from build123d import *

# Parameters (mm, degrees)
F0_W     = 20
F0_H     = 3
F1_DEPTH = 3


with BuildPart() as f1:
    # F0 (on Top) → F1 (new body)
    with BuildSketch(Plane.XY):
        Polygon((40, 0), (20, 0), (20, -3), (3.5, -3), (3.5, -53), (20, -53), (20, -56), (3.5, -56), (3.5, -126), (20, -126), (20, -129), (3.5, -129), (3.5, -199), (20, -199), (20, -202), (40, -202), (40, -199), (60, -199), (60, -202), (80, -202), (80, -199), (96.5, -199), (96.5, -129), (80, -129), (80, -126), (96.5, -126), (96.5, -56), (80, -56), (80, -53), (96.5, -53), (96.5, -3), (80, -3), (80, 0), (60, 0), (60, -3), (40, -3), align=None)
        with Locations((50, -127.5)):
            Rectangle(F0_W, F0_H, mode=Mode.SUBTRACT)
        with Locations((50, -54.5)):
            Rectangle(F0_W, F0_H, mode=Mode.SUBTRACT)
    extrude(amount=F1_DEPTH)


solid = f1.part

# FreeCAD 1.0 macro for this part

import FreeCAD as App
import Part
import Sketcher
from FreeCAD import Vector


def add_polygon(sketch, points):
    """Adds a closed chain of lines whose ends are joined by coincident constraints."""
    first, n = sketch.GeometryCount, len(points)
    for a, b in zip(points, points[1:] + points[:1]):
        sketch.addGeometry(Part.LineSegment(App.Vector(*a, 0), App.Vector(*b, 0)), False)
    for i in range(n):
        sketch.addConstraint(Sketcher.Constraint("Coincident", first + i, 2, first + (i + 1) % n, 1))

doc = App.newDocument("Part")
params = doc.addObject("Spreadsheet::Sheet", "Params")
for row, (alias, value) in enumerate([
    ("sketch1_width", "20 mm"),
    ("sketch1_height", "3 mm"),
    ("sketch1_height2", "50 mm"),
    ("sketch1_height3", "70 mm"),
    ("sketch1_width2", "16.5 mm"),
    ("pad1_length", "3 mm"),
], start=1):
    params.set(f"A{row}", alias)
    params.set(f"B{row}", "=" + value)
    params.setAlias(f"B{row}", alias)

body = doc.addObject("PartDesign::Body", "Body")

# Sketch on XY plane
sketch1 = body.newObject("Sketcher::SketchObject", "Sketch")
sketch1.AttachmentSupport = (doc.getObject("XY_Plane"), [""])
sketch1.MapMode = "FlatFace"
add_polygon(sketch1, [(40, 0), (20, 0), (20, -3), (3.5, -3), (3.5, -53), (20, -53), (20, -56), (3.5, -56), (3.5, -126), (20, -126), (20, -129), (3.5, -129), (3.5, -199), (20, -199), (20, -202), (40, -202), (40, -199), (60, -199), (60, -202), (80, -202), (80, -199), (96.5, -199), (96.5, -129), (80, -129), (80, -126), (96.5, -126), (96.5, -56), (80, -56), (80, -53), (96.5, -53), (96.5, -3), (80, -3), (80, 0), (60, 0), (60, -3), (40, -3)])  # lines 0-35
add_polygon(sketch1, [(60, -129), (40, -129), (40, -126), (60, -126)])  # lines 36-39
add_polygon(sketch1, [(60, -56), (40, -56), (40, -53), (60, -53)])  # lines 40-43
sketch1.addConstraint([
    Sketcher.Constraint("Horizontal", 0),
    Sketcher.Constraint("Vertical", 1),
    Sketcher.Constraint("Horizontal", 2),
    Sketcher.Constraint("Vertical", 3),
    Sketcher.Constraint("Horizontal", 4),
    Sketcher.Constraint("Vertical", 5),
    Sketcher.Constraint("Horizontal", 6),
    Sketcher.Constraint("Vertical", 7),
    Sketcher.Constraint("Horizontal", 8),
    Sketcher.Constraint("Vertical", 9),
    Sketcher.Constraint("Horizontal", 10),
    Sketcher.Constraint("Vertical", 11),
    Sketcher.Constraint("Horizontal", 12),
    Sketcher.Constraint("Vertical", 13),
    Sketcher.Constraint("Horizontal", 14),
    Sketcher.Constraint("Vertical", 15),
    Sketcher.Constraint("Horizontal", 16),
    Sketcher.Constraint("Vertical", 17),
    Sketcher.Constraint("Horizontal", 18),
    Sketcher.Constraint("Vertical", 19),
    Sketcher.Constraint("Horizontal", 20),
    Sketcher.Constraint("Vertical", 21),
    Sketcher.Constraint("Horizontal", 22),
    Sketcher.Constraint("Vertical", 23),
    Sketcher.Constraint("Horizontal", 24),
    Sketcher.Constraint("Vertical", 25),
    Sketcher.Constraint("Horizontal", 26),
    Sketcher.Constraint("Vertical", 27),
    Sketcher.Constraint("Horizontal", 28),
    Sketcher.Constraint("Vertical", 29),
    Sketcher.Constraint("Horizontal", 30),
    Sketcher.Constraint("Vertical", 31),
    Sketcher.Constraint("Horizontal", 32),
    Sketcher.Constraint("Vertical", 33),
    Sketcher.Constraint("Horizontal", 34),
    Sketcher.Constraint("Vertical", 35),
    Sketcher.Constraint("Horizontal", 36),
    Sketcher.Constraint("Vertical", 37),
    Sketcher.Constraint("Horizontal", 38),
    Sketcher.Constraint("Vertical", 39),
    Sketcher.Constraint("Horizontal", 40),
    Sketcher.Constraint("Vertical", 41),
    Sketcher.Constraint("Horizontal", 42),
    Sketcher.Constraint("Vertical", 43),
    Sketcher.Constraint("PointOnObject", 0, 2, -1),
    Sketcher.Constraint("PointOnObject", 31, 2, -1),
    Sketcher.Constraint("Horizontal", 12, 2, 15, 2),
    Sketcher.Constraint("Horizontal", 14, 2, 17, 2),
    Sketcher.Constraint("Horizontal", 16, 2, 19, 2),
    Sketcher.Constraint("Horizontal", 10, 2, 21, 2),
    Sketcher.Constraint("Horizontal", 8, 2, 23, 2),
    Sketcher.Constraint("Horizontal", 6, 2, 25, 2),
    Sketcher.Constraint("Horizontal", 4, 2, 27, 2),
    Sketcher.Constraint("Horizontal", 2, 2, 29, 2),
    Sketcher.Constraint("Horizontal", 30, 2, 33, 2),
    Sketcher.Constraint("Horizontal", 22, 2, 36, 2),
    Sketcher.Constraint("Horizontal", 24, 2, 37, 2),
    Sketcher.Constraint("Horizontal", 26, 2, 40, 2),
    Sketcher.Constraint("Horizontal", 28, 2, 41, 2),
    Sketcher.Constraint("Vertical", 1, 2, 4, 2),
    Sketcher.Constraint("Vertical", 3, 2, 6, 2),
    Sketcher.Constraint("Vertical", 5, 2, 8, 2),
    Sketcher.Constraint("Vertical", 7, 2, 10, 2),
    Sketcher.Constraint("Vertical", 9, 2, 12, 2),
    Sketcher.Constraint("Vertical", 19, 2, 22, 2),
    Sketcher.Constraint("Vertical", 21, 2, 24, 2),
    Sketcher.Constraint("Vertical", 23, 2, 26, 2),
    Sketcher.Constraint("Vertical", 25, 2, 28, 2),
    Sketcher.Constraint("Vertical", 27, 2, 30, 2),
    Sketcher.Constraint("Vertical", 17, 2, 32, 2),
    Sketcher.Constraint("Vertical", 15, 2, 34, 2),
    Sketcher.Constraint("Vertical", 35, 2, 36, 2),
    Sketcher.Constraint("Vertical", 33, 2, 38, 2),
    Sketcher.Constraint("Vertical", 37, 2, 40, 2),
    Sketcher.Constraint("Vertical", 39, 2, 42, 2),
    Sketcher.Constraint("Equal", 14, 16),
    Sketcher.Constraint("Equal", 16, 18),
    Sketcher.Constraint("Equal", 12, 20),
    Sketcher.Constraint("Equal", 1, 5),
    Sketcher.Constraint("Equal", 5, 9),
    Sketcher.Constraint("Equal", 7, 11),
    Sketcher.Constraint("Equal", 9, 13),
    Sketcher.Constraint("DistanceX", 0, 2, 0, 1, 20.0),
    Sketcher.Constraint("DistanceY", 1, 2, 1, 1, 3.0),
    Sketcher.Constraint("DistanceY", 3, 2, 3, 1, 50.0),
    Sketcher.Constraint("DistanceY", 7, 2, 7, 1, 70.0),
    Sketcher.Constraint("DistanceX", 2, 2, 2, 1, 16.5),
    Sketcher.Constraint("DistanceX", -1, 1, 0, 2, 20.0),
])
sketch1.setExpression("Constraints[126]", "Params.sketch1_width")
sketch1.setExpression("Constraints[127]", "Params.sketch1_height")
sketch1.setExpression("Constraints[128]", "Params.sketch1_height2")
sketch1.setExpression("Constraints[129]", "Params.sketch1_height3")
sketch1.setExpression("Constraints[130]", "Params.sketch1_width2")
pad1 = body.newObject("PartDesign::Pad", "Pad")
pad1.Profile = sketch1
pad1.setExpression("Length", "Params.pad1_length")

doc.recompute()
